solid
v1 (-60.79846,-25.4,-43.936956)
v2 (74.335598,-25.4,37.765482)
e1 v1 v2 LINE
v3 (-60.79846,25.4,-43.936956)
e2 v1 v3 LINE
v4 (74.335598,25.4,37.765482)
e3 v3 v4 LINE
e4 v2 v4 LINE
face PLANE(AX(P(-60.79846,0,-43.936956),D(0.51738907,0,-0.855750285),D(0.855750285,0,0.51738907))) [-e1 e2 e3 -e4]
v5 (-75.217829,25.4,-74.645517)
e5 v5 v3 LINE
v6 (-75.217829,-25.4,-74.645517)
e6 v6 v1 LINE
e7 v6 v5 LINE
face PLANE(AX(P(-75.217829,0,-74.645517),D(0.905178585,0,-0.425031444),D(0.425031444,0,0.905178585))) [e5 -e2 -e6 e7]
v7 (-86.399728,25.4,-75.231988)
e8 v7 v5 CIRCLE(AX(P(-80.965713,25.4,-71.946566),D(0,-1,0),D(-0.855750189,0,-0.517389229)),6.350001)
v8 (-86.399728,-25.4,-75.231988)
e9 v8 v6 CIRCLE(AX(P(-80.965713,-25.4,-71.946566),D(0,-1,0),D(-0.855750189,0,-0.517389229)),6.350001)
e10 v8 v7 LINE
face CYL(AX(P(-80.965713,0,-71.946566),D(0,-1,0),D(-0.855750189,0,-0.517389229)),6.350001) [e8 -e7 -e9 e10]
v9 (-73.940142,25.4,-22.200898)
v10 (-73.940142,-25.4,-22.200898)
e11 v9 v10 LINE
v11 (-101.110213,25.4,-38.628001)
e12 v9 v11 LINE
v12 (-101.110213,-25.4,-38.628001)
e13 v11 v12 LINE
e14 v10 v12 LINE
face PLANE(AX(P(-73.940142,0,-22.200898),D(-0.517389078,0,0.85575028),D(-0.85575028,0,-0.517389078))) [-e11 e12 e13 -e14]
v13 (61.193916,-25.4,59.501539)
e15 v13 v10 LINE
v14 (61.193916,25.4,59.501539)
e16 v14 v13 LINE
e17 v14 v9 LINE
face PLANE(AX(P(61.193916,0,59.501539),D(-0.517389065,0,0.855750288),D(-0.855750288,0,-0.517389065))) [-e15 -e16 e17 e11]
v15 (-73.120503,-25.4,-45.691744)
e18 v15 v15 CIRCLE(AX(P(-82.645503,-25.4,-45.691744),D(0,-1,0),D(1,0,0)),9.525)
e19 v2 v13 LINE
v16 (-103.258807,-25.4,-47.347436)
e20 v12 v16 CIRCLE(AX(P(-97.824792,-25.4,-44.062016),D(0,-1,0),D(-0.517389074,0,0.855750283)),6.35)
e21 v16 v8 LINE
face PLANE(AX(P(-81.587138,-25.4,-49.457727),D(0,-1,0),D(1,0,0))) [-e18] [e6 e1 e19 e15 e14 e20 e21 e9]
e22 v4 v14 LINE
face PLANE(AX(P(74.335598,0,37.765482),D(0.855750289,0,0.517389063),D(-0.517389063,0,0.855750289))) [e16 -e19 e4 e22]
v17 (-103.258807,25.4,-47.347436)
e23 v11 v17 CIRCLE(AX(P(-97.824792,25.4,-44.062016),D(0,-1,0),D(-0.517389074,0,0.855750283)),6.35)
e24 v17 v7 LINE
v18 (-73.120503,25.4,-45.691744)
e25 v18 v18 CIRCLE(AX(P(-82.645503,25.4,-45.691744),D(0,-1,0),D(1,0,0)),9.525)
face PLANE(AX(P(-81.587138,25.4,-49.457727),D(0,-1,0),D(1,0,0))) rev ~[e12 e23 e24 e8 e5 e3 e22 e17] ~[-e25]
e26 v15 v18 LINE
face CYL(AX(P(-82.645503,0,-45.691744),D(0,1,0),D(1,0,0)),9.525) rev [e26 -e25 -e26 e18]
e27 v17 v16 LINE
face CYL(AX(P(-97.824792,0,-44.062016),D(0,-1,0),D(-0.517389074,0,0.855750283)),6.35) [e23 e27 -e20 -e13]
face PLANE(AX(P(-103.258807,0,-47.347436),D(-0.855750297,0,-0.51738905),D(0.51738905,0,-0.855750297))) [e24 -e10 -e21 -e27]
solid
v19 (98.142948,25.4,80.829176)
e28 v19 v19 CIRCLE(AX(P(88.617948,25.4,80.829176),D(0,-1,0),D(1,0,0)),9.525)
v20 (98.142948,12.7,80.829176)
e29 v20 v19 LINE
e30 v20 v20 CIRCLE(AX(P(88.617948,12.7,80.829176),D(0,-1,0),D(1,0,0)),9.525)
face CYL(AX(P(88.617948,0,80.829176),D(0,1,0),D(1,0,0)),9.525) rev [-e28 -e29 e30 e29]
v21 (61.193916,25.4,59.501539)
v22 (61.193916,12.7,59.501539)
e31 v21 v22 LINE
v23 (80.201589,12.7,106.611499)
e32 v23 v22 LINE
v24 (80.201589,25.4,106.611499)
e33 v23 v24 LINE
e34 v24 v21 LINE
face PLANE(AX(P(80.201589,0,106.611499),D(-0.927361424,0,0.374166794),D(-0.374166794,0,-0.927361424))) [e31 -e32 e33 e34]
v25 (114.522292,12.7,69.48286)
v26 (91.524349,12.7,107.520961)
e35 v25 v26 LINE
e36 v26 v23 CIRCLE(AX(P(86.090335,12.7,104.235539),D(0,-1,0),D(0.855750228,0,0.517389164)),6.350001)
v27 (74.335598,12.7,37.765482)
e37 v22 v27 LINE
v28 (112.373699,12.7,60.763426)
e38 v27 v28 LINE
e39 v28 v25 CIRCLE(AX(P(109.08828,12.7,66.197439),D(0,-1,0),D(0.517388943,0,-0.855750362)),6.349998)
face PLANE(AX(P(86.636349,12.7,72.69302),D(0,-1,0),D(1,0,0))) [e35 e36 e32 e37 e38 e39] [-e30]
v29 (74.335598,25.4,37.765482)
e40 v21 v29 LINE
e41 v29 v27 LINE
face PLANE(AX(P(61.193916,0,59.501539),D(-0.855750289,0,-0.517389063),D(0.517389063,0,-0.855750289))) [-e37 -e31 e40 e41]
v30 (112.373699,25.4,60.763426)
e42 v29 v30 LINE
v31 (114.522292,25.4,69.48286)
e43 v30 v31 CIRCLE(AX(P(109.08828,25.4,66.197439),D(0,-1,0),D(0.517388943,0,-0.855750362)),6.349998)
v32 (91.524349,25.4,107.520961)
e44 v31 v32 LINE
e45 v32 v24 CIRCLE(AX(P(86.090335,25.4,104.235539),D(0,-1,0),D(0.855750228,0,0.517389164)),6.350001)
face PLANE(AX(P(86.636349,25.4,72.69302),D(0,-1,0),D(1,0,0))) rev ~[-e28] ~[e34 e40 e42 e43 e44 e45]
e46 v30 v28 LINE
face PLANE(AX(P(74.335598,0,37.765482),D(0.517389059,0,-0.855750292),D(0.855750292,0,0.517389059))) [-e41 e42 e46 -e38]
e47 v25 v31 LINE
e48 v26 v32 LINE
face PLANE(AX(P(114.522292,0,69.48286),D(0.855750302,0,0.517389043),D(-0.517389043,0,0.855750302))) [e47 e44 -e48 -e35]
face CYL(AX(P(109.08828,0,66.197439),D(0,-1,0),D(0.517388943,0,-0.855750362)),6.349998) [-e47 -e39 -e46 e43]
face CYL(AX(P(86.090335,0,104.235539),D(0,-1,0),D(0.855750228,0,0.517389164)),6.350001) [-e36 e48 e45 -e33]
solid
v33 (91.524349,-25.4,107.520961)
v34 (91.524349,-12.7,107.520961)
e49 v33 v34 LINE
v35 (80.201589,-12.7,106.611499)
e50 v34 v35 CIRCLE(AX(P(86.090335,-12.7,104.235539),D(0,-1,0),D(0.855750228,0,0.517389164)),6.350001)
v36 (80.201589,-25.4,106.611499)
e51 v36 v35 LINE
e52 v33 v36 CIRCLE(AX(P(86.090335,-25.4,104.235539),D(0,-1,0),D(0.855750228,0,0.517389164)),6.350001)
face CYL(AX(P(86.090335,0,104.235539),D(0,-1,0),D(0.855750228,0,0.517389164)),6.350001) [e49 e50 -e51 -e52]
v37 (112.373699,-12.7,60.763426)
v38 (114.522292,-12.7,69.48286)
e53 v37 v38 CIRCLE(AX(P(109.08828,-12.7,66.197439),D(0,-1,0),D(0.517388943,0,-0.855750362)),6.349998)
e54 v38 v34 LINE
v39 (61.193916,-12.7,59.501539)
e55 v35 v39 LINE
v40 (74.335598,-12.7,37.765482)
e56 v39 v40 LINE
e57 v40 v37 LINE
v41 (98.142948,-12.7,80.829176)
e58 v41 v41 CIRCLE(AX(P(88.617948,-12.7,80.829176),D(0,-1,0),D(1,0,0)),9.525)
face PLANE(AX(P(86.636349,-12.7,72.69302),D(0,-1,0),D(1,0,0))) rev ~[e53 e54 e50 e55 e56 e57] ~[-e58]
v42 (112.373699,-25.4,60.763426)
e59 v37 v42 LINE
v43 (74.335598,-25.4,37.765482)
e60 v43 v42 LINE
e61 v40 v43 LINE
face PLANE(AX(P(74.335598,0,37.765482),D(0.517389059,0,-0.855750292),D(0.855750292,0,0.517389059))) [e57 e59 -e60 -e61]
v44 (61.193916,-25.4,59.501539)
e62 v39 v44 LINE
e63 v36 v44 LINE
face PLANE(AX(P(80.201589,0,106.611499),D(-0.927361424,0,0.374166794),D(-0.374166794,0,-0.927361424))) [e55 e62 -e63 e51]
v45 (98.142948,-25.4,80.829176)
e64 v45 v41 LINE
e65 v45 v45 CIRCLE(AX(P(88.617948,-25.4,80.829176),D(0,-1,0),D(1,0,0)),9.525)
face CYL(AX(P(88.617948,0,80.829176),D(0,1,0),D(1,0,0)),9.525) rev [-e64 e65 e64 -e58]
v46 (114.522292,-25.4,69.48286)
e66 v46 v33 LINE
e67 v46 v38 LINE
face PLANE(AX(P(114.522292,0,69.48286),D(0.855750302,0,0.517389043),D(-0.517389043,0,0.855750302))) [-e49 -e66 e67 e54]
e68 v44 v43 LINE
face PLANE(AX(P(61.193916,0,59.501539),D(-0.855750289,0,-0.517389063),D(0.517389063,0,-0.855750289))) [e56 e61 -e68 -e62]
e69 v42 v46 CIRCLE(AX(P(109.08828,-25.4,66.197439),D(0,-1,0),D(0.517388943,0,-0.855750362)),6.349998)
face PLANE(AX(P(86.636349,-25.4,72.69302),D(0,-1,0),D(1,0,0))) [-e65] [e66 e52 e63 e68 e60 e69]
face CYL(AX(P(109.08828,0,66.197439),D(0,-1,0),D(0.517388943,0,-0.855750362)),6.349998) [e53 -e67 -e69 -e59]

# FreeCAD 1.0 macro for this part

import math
import FreeCAD as App
import Part
import Sketcher
from FreeCAD import Vector
Q = App.Units.Quantity

doc = App.newDocument("Part")
body = doc.addObject("PartDesign::Body", "Body")
body.AllowCompound = True

# Sketch on XZ plane
sketch1 = doc.addObject("Sketcher::SketchObject", "Sketch")
body.addObject(sketch1)
sketch1.AttachmentSupport = (doc.XZ_Plane, [""])
sketch1.MapMode = "FlatFace"
sketch1.addGeometry(Part.LineSegment(Vector(80.201589, 106.611499, 0), Vector(61.193916, 59.501539, 0)), False)
sketch1.addGeometry(Part.LineSegment(Vector(61.193916, 59.501539, 0), Vector(74.335598, 37.765482, 0)), False)
sketch1.addGeometry(Part.LineSegment(Vector(74.335598, 37.765482, 0), Vector(112.373699, 60.763426, 0)), False)
sketch1.addGeometry(Part.ArcOfCircle(Part.Circle(Vector(109.08828, 66.197439, 0), Vector(0, 0, 1), 6.349998), math.radians(-58.842731), math.radians(31.157292)), False)
sketch1.addGeometry(Part.LineSegment(Vector(114.522292, 69.48286, 0), Vector(91.524349, 107.520961, 0)), False)
sketch1.addGeometry(Part.ArcOfCircle(Part.Circle(Vector(86.090335, 104.235539, 0), Vector(0, 0, 1), 6.350001), math.radians(31.157284), math.radians(158.027174)), False)
sketch1.addGeometry(Part.Circle(Vector(88.617948, 80.829176, 0), Vector(0, 0, 1), 9.525), False)
sketch1.addConstraint(Sketcher.Constraint("Coincident", 0, 2, 1, 1))
sketch1.addConstraint(Sketcher.Constraint("Coincident", 1, 2, 2, 1))
sketch1.addConstraint(Sketcher.Constraint("Tangent", 2, 2, 3, 1))
sketch1.addConstraint(Sketcher.Constraint("Tangent", 3, 2, 4, 1))
sketch1.addConstraint(Sketcher.Constraint("Tangent", 4, 2, 5, 1))
sketch1.addConstraint(Sketcher.Constraint("Tangent", 5, 2, 0, 1))
sketch1.addConstraint(Sketcher.Constraint("Perpendicular", 1, 2))
sketch1.addConstraint(Sketcher.Constraint("Perpendicular", 2, 4))
sketch1.addConstraint(Sketcher.Constraint("Equal", 2, 4))
sketch1.addConstraint(Sketcher.Constraint("Diameter", 6, Q("0.75 in")))
sketch1.addConstraint(Sketcher.Constraint("Radius", 3, Q("0.2499999 in")))
sketch1.addConstraint(Sketcher.Constraint("Radius", 5, Q("0.25 in")))
sketch1.addConstraint(Sketcher.Constraint("Distance", 0, Q("2 in")))
sketch1.addConstraint(Sketcher.Constraint("Distance", 1, Q("1 in")))
sketch1.addConstraint(Sketcher.Constraint("DistanceX", -1, 1, 1, 2, 74.335598))
sketch1.addConstraint(Sketcher.Constraint("DistanceX", -1, 1, 2, 2, 112.373699))
sketch1.addConstraint(Sketcher.Constraint("DistanceY", -1, 1, 5, 2, 106.611499))
sketch1.addConstraint(Sketcher.Constraint("DistanceX", 6, 3, 4, 2, 2.906401))
sketch1.addConstraint(Sketcher.Constraint("DistanceY", 2, 2, 6, 3, 20.06575))
pad1 = doc.addObject("PartDesign::Pad", "Pad")
body.addObject(pad1)
pad1.Profile = sketch1
pad1.Length = Q("2 in")
pad1.Midplane = True

# Sketch on XZ plane
sketch2 = doc.addObject("Sketcher::SketchObject", "Sketch001")
body.addObject(sketch2)
sketch2.AttachmentSupport = (doc.XZ_Plane, [""])
sketch2.MapMode = "FlatFace"
sketch2.addGeometry(Part.LineSegment(Vector(80.201589, 106.611499, 0), Vector(61.193916, 59.501539, 0)), False)
sketch2.addGeometry(Part.LineSegment(Vector(61.193916, 59.501539, 0), Vector(74.335598, 37.765482, 0)), False)
sketch2.addGeometry(Part.LineSegment(Vector(74.335598, 37.765482, 0), Vector(112.373699, 60.763426, 0)), False)
sketch2.addGeometry(Part.ArcOfCircle(Part.Circle(Vector(109.08828, 66.197439, 0), Vector(0, 0, 1), 6.349998), math.radians(-58.842731), math.radians(31.157292)), False)
sketch2.addGeometry(Part.LineSegment(Vector(114.522292, 69.48286, 0), Vector(91.524349, 107.520961, 0)), False)
sketch2.addGeometry(Part.ArcOfCircle(Part.Circle(Vector(86.090335, 104.235539, 0), Vector(0, 0, 1), 6.350001), math.radians(31.157284), math.radians(158.027174)), False)
sketch2.addGeometry(Part.Circle(Vector(88.617948, 80.829176, 0), Vector(0, 0, 1), 9.525), False)
sketch2.addConstraint(Sketcher.Constraint("Coincident", 0, 2, 1, 1))
sketch2.addConstraint(Sketcher.Constraint("Coincident", 1, 2, 2, 1))
sketch2.addConstraint(Sketcher.Constraint("Tangent", 2, 2, 3, 1))
sketch2.addConstraint(Sketcher.Constraint("Tangent", 3, 2, 4, 1))
sketch2.addConstraint(Sketcher.Constraint("Tangent", 4, 2, 5, 1))
sketch2.addConstraint(Sketcher.Constraint("Tangent", 5, 2, 0, 1))
sketch2.addConstraint(Sketcher.Constraint("Perpendicular", 1, 2))
sketch2.addConstraint(Sketcher.Constraint("Perpendicular", 2, 4))
sketch2.addConstraint(Sketcher.Constraint("Equal", 2, 4))
sketch2.addConstraint(Sketcher.Constraint("Diameter", 6, Q("0.75 in")))
sketch2.addConstraint(Sketcher.Constraint("Radius", 3, Q("0.2499999 in")))
sketch2.addConstraint(Sketcher.Constraint("Radius", 5, Q("0.25 in")))
sketch2.addConstraint(Sketcher.Constraint("Distance", 0, Q("2 in")))
sketch2.addConstraint(Sketcher.Constraint("Distance", 1, Q("1 in")))
sketch2.addConstraint(Sketcher.Constraint("DistanceX", -1, 1, 1, 2, 74.335598))
sketch2.addConstraint(Sketcher.Constraint("DistanceX", -1, 1, 2, 2, 112.373699))
sketch2.addConstraint(Sketcher.Constraint("DistanceY", -1, 1, 5, 2, 106.611499))
sketch2.addConstraint(Sketcher.Constraint("DistanceX", 6, 3, 4, 2, 2.906401))
sketch2.addConstraint(Sketcher.Constraint("DistanceY", 2, 2, 6, 3, 20.06575))
pocket1 = doc.addObject("PartDesign::Pocket", "Pocket")
body.addObject(pocket1)
pocket1.Profile = sketch2
pocket1.Length = Q("1 in")
pocket1.Midplane = True
body2 = doc.addObject("PartDesign::Body", "Body001")

# Sketch on XZ plane
sketch3 = doc.addObject("Sketcher::SketchObject", "Sketch002")
body2.addObject(sketch3)
sketch3.AttachmentSupport = (doc.getObject("XZ_Plane001"), [""])
sketch3.MapMode = "FlatFace"
sketch3.addGeometry(Part.LineSegment(Vector(74.335598, 37.765482, 0), Vector(61.193916, 59.501539, 0)), False)
sketch3.addGeometry(Part.LineSegment(Vector(61.193916, 59.501539, 0), Vector(-73.940142, -22.200898, 0)), False)
sketch3.addGeometry(Part.LineSegment(Vector(-73.940142, -22.200898, 0), Vector(-60.79846, -43.936956, 0)), False)
sketch3.addGeometry(Part.LineSegment(Vector(-60.79846, -43.936956, 0), Vector(74.335598, 37.765482, 0)), False)
sketch3.addConstraint(Sketcher.Constraint("Coincident", 0, 2, 1, 1))
sketch3.addConstraint(Sketcher.Constraint("Coincident", 1, 2, 2, 1))
sketch3.addConstraint(Sketcher.Constraint("Coincident", 2, 2, 3, 1))
sketch3.addConstraint(Sketcher.Constraint("Coincident", 3, 2, 0, 1))
sketch3.addConstraint(Sketcher.Constraint("Perpendicular", 0, 1))
sketch3.addConstraint(Sketcher.Constraint("Perpendicular", 1, 2))
sketch3.addConstraint(Sketcher.Constraint("Perpendicular", 2, 3))
sketch3.addConstraint(Sketcher.Constraint("Distance", 0, Q("1 in")))
sketch3.addConstraint(Sketcher.Constraint("DistanceX", -1, 1, 3, 2, 74.335598))
sketch3.addConstraint(Sketcher.Constraint("DistanceY", -1, 1, 0, 2, 59.501539))
sketch3.addConstraint(Sketcher.Constraint("DistanceX", 1, 2, -1, 1, 73.940142))
sketch3.addConstraint(Sketcher.Constraint("DistanceX", 2, 2, -1, 1, 60.79846))
pad2 = doc.addObject("PartDesign::Pad", "Pad001")
body2.addObject(pad2)
pad2.Profile = sketch3
pad2.Length = Q("2 in")
pad2.Midplane = True

# Sketch on XZ plane
sketch4 = doc.addObject("Sketcher::SketchObject", "Sketch003")
body2.addObject(sketch4)
sketch4.AttachmentSupport = (doc.getObject("XZ_Plane001"), [""])
sketch4.MapMode = "FlatFace"
sketch4.addGeometry(Part.LineSegment(Vector(-60.79846, -43.936956, 0), Vector(-73.940142, -22.200898, 0)), False)
sketch4.addGeometry(Part.LineSegment(Vector(-73.940142, -22.200898, 0), Vector(-101.110213, -38.628001, 0)), False)
sketch4.addGeometry(Part.ArcOfCircle(Part.Circle(Vector(-97.824792, -44.062016, 0), Vector(0, 0, 1), 6.35), math.radians(121.157278), math.radians(211.157274)), False)
sketch4.addGeometry(Part.LineSegment(Vector(-103.258807, -47.347436, 0), Vector(-86.399728, -75.231988, 0)), False)
sketch4.addGeometry(Part.ArcOfCircle(Part.Circle(Vector(-80.965713, -71.946566, 0), Vector(0, 0, 1), 6.350001), math.radians(-148.842712), math.radians(-25.152664)), False)
sketch4.addGeometry(Part.LineSegment(Vector(-75.217829, -74.645517, 0), Vector(-60.79846, -43.936956, 0)), False)
sketch4.addGeometry(Part.Circle(Vector(-82.645503, -45.691744, 0), Vector(0, 0, 1), 9.525), False)
sketch4.addConstraint(Sketcher.Constraint("Coincident", 0, 2, 1, 1))
sketch4.addConstraint(Sketcher.Constraint("Tangent", 1, 2, 2, 1))
sketch4.addConstraint(Sketcher.Constraint("Tangent", 2, 2, 3, 1))
sketch4.addConstraint(Sketcher.Constraint("Tangent", 3, 2, 4, 1))
sketch4.addConstraint(Sketcher.Constraint("Tangent", 4, 2, 5, 1))
sketch4.addConstraint(Sketcher.Constraint("Coincident", 5, 2, 0, 1))
sketch4.addConstraint(Sketcher.Constraint("Equal", 2, 4))
sketch4.addConstraint(Sketcher.Constraint("Perpendicular", 0, 1))
sketch4.addConstraint(Sketcher.Constraint("Perpendicular", 1, 3))
sketch4.addConstraint(Sketcher.Constraint("Diameter", 6, Q("0.75 in")))
sketch4.addConstraint(Sketcher.Constraint("Radius", 2, Q("0.25 in")))
sketch4.addConstraint(Sketcher.Constraint("Distance", 0, Q("1 in")))
sketch4.addConstraint(Sketcher.Constraint("Distance", 1, Q("1.25 in")))
sketch4.addConstraint(Sketcher.Constraint("DistanceY", 4, 2, -1, 1, Q("2.9387999 in")))
sketch4.addConstraint(Sketcher.Constraint("DistanceY", 6, 3, 1, 2, Q("0.2781001 in")))
sketch4.addConstraint(Sketcher.Constraint("DistanceY", 1, 2, -1, 1, 38.628001))
sketch4.addConstraint(Sketcher.Constraint("DistanceX", 1, 2, 4, 3, 20.1445))
sketch4.addConstraint(Sketcher.Constraint("DistanceX", 0, 2, -1, 1, 73.940142))
sketch4.addConstraint(Sketcher.Constraint("DistanceX", 2, 3, 6, 3, 15.179289))
pad3 = doc.addObject("PartDesign::Pad", "Pad002")
body2.addObject(pad3)
pad3.Profile = sketch4
pad3.Length = Q("2 in")
pad3.Midplane = True

doc.recompute()
